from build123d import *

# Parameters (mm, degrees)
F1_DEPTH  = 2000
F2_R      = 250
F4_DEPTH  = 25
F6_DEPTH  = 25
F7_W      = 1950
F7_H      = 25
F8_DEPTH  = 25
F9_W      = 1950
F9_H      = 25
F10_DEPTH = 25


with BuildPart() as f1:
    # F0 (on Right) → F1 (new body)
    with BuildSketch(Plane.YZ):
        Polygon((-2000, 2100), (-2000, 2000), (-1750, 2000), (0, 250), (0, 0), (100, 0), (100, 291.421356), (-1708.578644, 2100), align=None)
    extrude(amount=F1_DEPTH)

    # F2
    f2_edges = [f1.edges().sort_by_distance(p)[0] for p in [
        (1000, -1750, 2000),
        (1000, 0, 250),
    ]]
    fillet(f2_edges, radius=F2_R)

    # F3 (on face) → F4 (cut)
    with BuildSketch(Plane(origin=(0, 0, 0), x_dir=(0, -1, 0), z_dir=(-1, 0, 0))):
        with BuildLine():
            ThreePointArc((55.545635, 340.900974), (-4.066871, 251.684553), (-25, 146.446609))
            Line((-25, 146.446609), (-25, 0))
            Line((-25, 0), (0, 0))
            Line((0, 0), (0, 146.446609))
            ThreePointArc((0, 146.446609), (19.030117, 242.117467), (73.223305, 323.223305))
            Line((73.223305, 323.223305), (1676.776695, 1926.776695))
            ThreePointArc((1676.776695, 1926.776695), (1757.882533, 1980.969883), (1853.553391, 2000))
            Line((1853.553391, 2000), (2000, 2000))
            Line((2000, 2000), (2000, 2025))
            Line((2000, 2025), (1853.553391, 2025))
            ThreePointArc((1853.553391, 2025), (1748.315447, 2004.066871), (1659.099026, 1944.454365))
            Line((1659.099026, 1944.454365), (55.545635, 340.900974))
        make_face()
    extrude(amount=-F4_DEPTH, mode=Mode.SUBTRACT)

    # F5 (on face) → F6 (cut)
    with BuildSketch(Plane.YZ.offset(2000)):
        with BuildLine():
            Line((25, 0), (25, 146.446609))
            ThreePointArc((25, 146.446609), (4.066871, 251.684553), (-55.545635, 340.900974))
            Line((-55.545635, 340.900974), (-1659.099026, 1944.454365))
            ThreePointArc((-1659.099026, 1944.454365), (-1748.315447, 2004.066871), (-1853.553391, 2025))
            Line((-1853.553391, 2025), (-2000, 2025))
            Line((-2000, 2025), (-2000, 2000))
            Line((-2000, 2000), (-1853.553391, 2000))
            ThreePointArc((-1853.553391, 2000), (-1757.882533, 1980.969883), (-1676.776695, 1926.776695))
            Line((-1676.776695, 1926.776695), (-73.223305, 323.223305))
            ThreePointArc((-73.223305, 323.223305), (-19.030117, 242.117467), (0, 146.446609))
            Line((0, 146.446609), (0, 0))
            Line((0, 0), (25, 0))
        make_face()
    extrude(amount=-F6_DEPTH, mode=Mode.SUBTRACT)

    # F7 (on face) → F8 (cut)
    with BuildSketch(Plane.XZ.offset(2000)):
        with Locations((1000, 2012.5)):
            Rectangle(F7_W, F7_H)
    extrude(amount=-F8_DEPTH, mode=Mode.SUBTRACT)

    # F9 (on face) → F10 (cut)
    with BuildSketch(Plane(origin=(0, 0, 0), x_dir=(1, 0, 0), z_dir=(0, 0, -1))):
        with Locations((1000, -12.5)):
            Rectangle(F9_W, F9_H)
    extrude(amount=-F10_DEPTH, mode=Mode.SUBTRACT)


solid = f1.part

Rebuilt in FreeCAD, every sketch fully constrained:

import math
import FreeCAD as App
import Part
import Sketcher
from FreeCAD import Vector
Q = App.Units.Quantity


def edges_at(feature, points):
    """Names of the edges that pass closest to the given points."""
    edges = feature.Shape.Edges
    near = lambda p: min(range(len(edges)), key=lambda i: edges[i].distToShape(Part.Vertex(*p))[0])
    return sorted({f"Edge{near(p) + 1}" for p in points})

doc = App.newDocument("Part")
params = doc.addObject("Spreadsheet::Sheet", "Params")
for row, (alias, value) in enumerate([
    ("sketch1_width", "250 mm"),
    ("sketch1_width2", "100 mm"),
    ("pad1_length", "2000 mm"),
    ("fillet_radius", "250 mm"),
    ("sketch2_width", "25 mm"),
    ("pocket1_length", "25 mm"),
    ("sketch3_width", "25 mm"),
    ("pocket2_length", "25 mm"),
    ("sketch4_width", "1950 mm"),
    ("sketch4_height", "25 mm"),
    ("pocket3_length", "25 mm"),
    ("sketch5_width", "1950 mm"),
    ("sketch5_height", "25 mm"),
    ("pocket4_length", "25 mm"),
], start=1):
    params.set(f"A{row}", alias)
    params.set(f"B{row}", "=" + value)
    params.setAlias(f"B{row}", alias)

body = doc.addObject("PartDesign::Body", "Body")

sketch1 = body.newObject("Sketcher::SketchObject", "Sketch")
sketch1.AttachmentSupport = (doc.getObject("YZ_Plane"), [""])
sketch1.MapMode = "FlatFace"
sketch1.addGeometry([
    Part.LineSegment(Vector(-2000, 2100, 0), Vector(-2000, 2000, 0)),
    Part.LineSegment(Vector(-2000, 2000, 0), Vector(-1750, 2000, 0)),
    Part.LineSegment(Vector(-1750, 2000, 0), Vector(0, 250, 0)),
    Part.LineSegment(Vector(0, 250, 0), Vector(0, 0, 0)),
    Part.LineSegment(Vector(0, 0, 0), Vector(100, 0, 0)),
    Part.LineSegment(Vector(100, 0, 0), Vector(100, 291, 0)),
    Part.LineSegment(Vector(100, 291, 0), Vector(-1709, 2100, 0)),
    Part.LineSegment(Vector(-1709, 2100, 0), Vector(-2000, 2100, 0)),
], False)
sketch1.addConstraint([
    Sketcher.Constraint("Coincident", 0, 2, 1, 1),
    Sketcher.Constraint("Coincident", 1, 2, 2, 1),
    Sketcher.Constraint("Coincident", 2, 2, 3, 1),
    Sketcher.Constraint("Coincident", 3, 2, 4, 1),
    Sketcher.Constraint("Coincident", 4, 2, 5, 1),
    Sketcher.Constraint("Coincident", 5, 2, 6, 1),
    Sketcher.Constraint("Coincident", 6, 2, 7, 1),
    Sketcher.Constraint("Coincident", 7, 2, 0, 1),
    Sketcher.Constraint("Vertical", 0),
    Sketcher.Constraint("Horizontal", 1),
    Sketcher.Constraint("Vertical", 3),
    Sketcher.Constraint("Horizontal", 4),
    Sketcher.Constraint("Vertical", 5),
    Sketcher.Constraint("Horizontal", 7),
    Sketcher.Constraint("Coincident", 3, 2, -1, 1),
    Sketcher.Constraint("Parallel", 2, 6),
    Sketcher.Constraint("Equal", 4, 0),
    Sketcher.Constraint("Equal", 1, 3),
    Sketcher.Constraint("Equal", 7, 5),
    Sketcher.Constraint("DistanceX", 1, 1, 1, 2, Q("250 mm")),
    Sketcher.Constraint("DistanceX", 4, 1, 4, 2, Q("100 mm")),
    Sketcher.Constraint("DistanceX", 0, 2, -1, 1, Q("2000 mm")),
    Sketcher.Constraint("DistanceX", 7, 2, 7, 1, Q("291.421356 mm")),
])
sketch1.setExpression("Constraints[19]", "Params.sketch1_width")
sketch1.setExpression("Constraints[20]", "Params.sketch1_width2")
pad1 = body.newObject("PartDesign::Pad", "Pad")
pad1.Profile = sketch1
pad1.setExpression("Length", "Params.pad1_length")
doc.recompute()

fillet = body.newObject("PartDesign::Fillet", "Fillet")
fillet.Base = (pad1, edges_at(pad1, [(1000, -1750, 2000), (1000, 0, 250)]))
fillet.setExpression("Radius", "Params.fillet_radius")

sketch2 = body.newObject("Sketcher::SketchObject", "Sketch001")
sketch2.AttachmentSupport = (doc.getObject("YZ_Plane"), [""])
sketch2.MapMode = "FlatFace"
sketch2.addGeometry([
    Part.ArcOfCircle(Part.Circle(Vector(-250, 146, 0), Vector(0, 0, 1), 275), math.radians(0), math.radians(45)),
    Part.LineSegment(Vector(25, 146, 0), Vector(25, 0, 0)),
    Part.LineSegment(Vector(25, 0, 0), Vector(0, 0, 0)),
    Part.LineSegment(Vector(0, 0, 0), Vector(0, 146, 0)),
    Part.ArcOfCircle(Part.Circle(Vector(-250, 146, 0), Vector(0, 0, 1), 250), math.radians(0), math.radians(45)),
    Part.LineSegment(Vector(-73, 323, 0), Vector(-1677, 1927, 0)),
    Part.ArcOfCircle(Part.Circle(Vector(-1854, 1750, 0), Vector(0, 0, 1), 250), math.radians(45), math.radians(90)),
    Part.LineSegment(Vector(-1854, 2000, 0), Vector(-2000, 2000, 0)),
    Part.LineSegment(Vector(-2000, 2000, 0), Vector(-2000, 2025, 0)),
    Part.LineSegment(Vector(-2000, 2025, 0), Vector(-1854, 2025, 0)),
    Part.ArcOfCircle(Part.Circle(Vector(-1854, 1750, 0), Vector(0, 0, 1), 275), math.radians(45), math.radians(90)),
    Part.LineSegment(Vector(-1659, 1944, 0), Vector(-56, 341, 0)),
], False)
sketch2.addConstraint([
    Sketcher.Constraint("Tangent", 0, 1, 1, 1),
    Sketcher.Constraint("Coincident", 1, 2, 2, 1),
    Sketcher.Constraint("Coincident", 2, 2, 3, 1),
    Sketcher.Constraint("Tangent", 3, 2, 4, 1),
    Sketcher.Constraint("Tangent", 4, 2, 5, 1),
    Sketcher.Constraint("Tangent", 5, 2, 6, 1),
    Sketcher.Constraint("Tangent", 6, 2, 7, 1),
    Sketcher.Constraint("Coincident", 7, 2, 8, 1),
    Sketcher.Constraint("Coincident", 8, 2, 9, 1),
    Sketcher.Constraint("Tangent", 9, 2, 10, 2),
    Sketcher.Constraint("Tangent", 10, 1, 11, 1),
    Sketcher.Constraint("Tangent", 11, 2, 0, 2),
    Sketcher.Constraint("Vertical", 1),
    Sketcher.Constraint("Horizontal", 2),
    Sketcher.Constraint("Vertical", 3),
    Sketcher.Constraint("Horizontal", 7),
    Sketcher.Constraint("Vertical", 8),
    Sketcher.Constraint("Horizontal", 9),
    Sketcher.Constraint("Coincident", 2, 2, -1, 1),
    Sketcher.Constraint("Coincident", 4, 3, 0, 3),
    Sketcher.Constraint("Coincident", 10, 3, 6, 3),
    Sketcher.Constraint("Equal", 4, 6),
    Sketcher.Constraint("Equal", 0, 10),
    Sketcher.Constraint("Equal", 9, 1),
    Sketcher.Constraint("DistanceX", 2, 2, 2, 1, Q("25 mm")),
    Sketcher.Constraint("Angle", 5, Q("135 deg")),
    Sketcher.Constraint("DistanceY", -1, 1, 6, 2, Q("2000 mm")),
    Sketcher.Constraint("Radius", 0, Q("275.000006 mm")),
    Sketcher.Constraint("DistanceX", 7, 2, 7, 1, Q("146.446609 mm")),
])
sketch2.setExpression("Constraints[24]", "Params.sketch2_width")
pocket1 = body.newObject("PartDesign::Pocket", "Pocket")
pocket1.Profile = sketch2
pocket1.setExpression("Length", "Params.pocket1_length")
pocket1.Reversed = True

sketch3 = body.newObject("Sketcher::SketchObject", "Sketch002")
sketch3.AttachmentSupport = (doc.getObject("YZ_Plane"), [""])
sketch3.MapMode = "FlatFace"
sketch3.AttachmentOffset = App.Placement(Vector(0, 0, 2000), App.Rotation())
sketch3.addGeometry([
    Part.LineSegment(Vector(25, 0, 0), Vector(25, 146, 0)),
    Part.ArcOfCircle(Part.Circle(Vector(-250, 146, 0), Vector(0, 0, 1), 275), math.radians(0), math.radians(45)),
    Part.LineSegment(Vector(-56, 341, 0), Vector(-1659, 1944, 0)),
    Part.ArcOfCircle(Part.Circle(Vector(-1854, 1750, 0), Vector(0, 0, 1), 275), math.radians(45), math.radians(90)),
    Part.LineSegment(Vector(-1854, 2025, 0), Vector(-2000, 2025, 0)),
    Part.LineSegment(Vector(-2000, 2025, 0), Vector(-2000, 2000, 0)),
    Part.LineSegment(Vector(-2000, 2000, 0), Vector(-1854, 2000, 0)),
    Part.ArcOfCircle(Part.Circle(Vector(-1854, 1750, 0), Vector(0, 0, 1), 250), math.radians(45), math.radians(90)),
    Part.LineSegment(Vector(-1677, 1927, 0), Vector(-73, 323, 0)),
    Part.ArcOfCircle(Part.Circle(Vector(-250, 146, 0), Vector(0, 0, 1), 250), math.radians(0), math.radians(45)),
    Part.LineSegment(Vector(0, 146, 0), Vector(0, 0, 0)),
    Part.LineSegment(Vector(0, 0, 0), Vector(25, 0, 0)),
], False)
sketch3.addConstraint([
    Sketcher.Constraint("Tangent", 0, 2, 1, 1),
    Sketcher.Constraint("Tangent", 1, 2, 2, 1),
    Sketcher.Constraint("Tangent", 2, 2, 3, 1),
    Sketcher.Constraint("Tangent", 3, 2, 4, 1),
    Sketcher.Constraint("Coincident", 4, 2, 5, 1),
    Sketcher.Constraint("Coincident", 5, 2, 6, 1),
    Sketcher.Constraint("Tangent", 6, 2, 7, 2),
    Sketcher.Constraint("Tangent", 7, 1, 8, 1),
    Sketcher.Constraint("Tangent", 8, 2, 9, 2),
    Sketcher.Constraint("Tangent", 9, 1, 10, 1),
    Sketcher.Constraint("Coincident", 10, 2, 11, 1),
    Sketcher.Constraint("Coincident", 11, 2, 0, 1),
    Sketcher.Constraint("Vertical", 0),
    Sketcher.Constraint("Horizontal", 4),
    Sketcher.Constraint("Vertical", 5),
    Sketcher.Constraint("Horizontal", 6),
    Sketcher.Constraint("Vertical", 10),
    Sketcher.Constraint("Horizontal", 11),
    Sketcher.Constraint("Coincident", 10, 2, -1, 1),
    Sketcher.Constraint("Coincident", 7, 3, 3, 3),
    Sketcher.Constraint("Coincident", 9, 3, 1, 3),
    Sketcher.Constraint("Equal", 1, 3),
    Sketcher.Constraint("Equal", 7, 9),
    Sketcher.Constraint("Equal", 6, 0),
    Sketcher.Constraint("DistanceX", 11, 1, 11, 2, Q("25 mm")),
    Sketcher.Constraint("Angle", 2, Q("135 deg")),
    Sketcher.Constraint("DistanceY", -1, 1, 3, 2, Q("2025 mm")),
    Sketcher.Constraint("Radius", 1, Q("275.000006 mm")),
    Sketcher.Constraint("DistanceX", 4, 2, 4, 1, Q("146.446609 mm")),
])
sketch3.setExpression("Constraints[24]", "Params.sketch3_width")
pocket2 = body.newObject("PartDesign::Pocket", "Pocket001")
pocket2.Profile = sketch3
pocket2.setExpression("Length", "Params.pocket2_length")

sketch4 = body.newObject("Sketcher::SketchObject", "Sketch003")
sketch4.AttachmentSupport = (doc.getObject("XZ_Plane"), [""])
sketch4.MapMode = "FlatFace"
sketch4.AttachmentOffset = App.Placement(Vector(0, 0, 2000), App.Rotation())
sketch4.addGeometry([
    Part.LineSegment(Vector(25, 2025, 0), Vector(25, 2000, 0)),
    Part.LineSegment(Vector(25, 2000, 0), Vector(1975, 2000, 0)),
    Part.LineSegment(Vector(1975, 2000, 0), Vector(1975, 2025, 0)),
    Part.LineSegment(Vector(1975, 2025, 0), Vector(25, 2025, 0)),
], False)
sketch4.addConstraint([
    Sketcher.Constraint("Coincident", 0, 2, 1, 1),
    Sketcher.Constraint("Coincident", 1, 2, 2, 1),
    Sketcher.Constraint("Coincident", 2, 2, 3, 1),
    Sketcher.Constraint("Coincident", 3, 2, 0, 1),
    Sketcher.Constraint("Vertical", 0),
    Sketcher.Constraint("Horizontal", 1),
    Sketcher.Constraint("Vertical", 2),
    Sketcher.Constraint("Horizontal", 3),
    Sketcher.Constraint("DistanceX", 1, 1, 1, 2, Q("1950 mm")),
    Sketcher.Constraint("DistanceY", 0, 2, 0, 1, Q("25 mm")),
    Sketcher.Constraint("DistanceX", -1, 1, 0, 2, Q("25 mm")),
    Sketcher.Constraint("DistanceY", -1, 1, 0, 2, Q("2000 mm")),
])
sketch4.setExpression("Constraints[8]", "Params.sketch4_width")
sketch4.setExpression("Constraints[9]", "Params.sketch4_height")
pocket3 = body.newObject("PartDesign::Pocket", "Pocket002")
pocket3.Profile = sketch4
pocket3.setExpression("Length", "Params.pocket3_length")

sketch5 = body.newObject("Sketcher::SketchObject", "Sketch004")
sketch5.AttachmentSupport = (doc.getObject("XY_Plane"), [""])
sketch5.MapMode = "FlatFace"
sketch5.addGeometry([
    Part.LineSegment(Vector(25, 0, 0), Vector(25, 25, 0)),
    Part.LineSegment(Vector(25, 25, 0), Vector(1975, 25, 0)),
    Part.LineSegment(Vector(1975, 25, 0), Vector(1975, 0, 0)),
    Part.LineSegment(Vector(1975, 0, 0), Vector(25, 0, 0)),
], False)
sketch5.addConstraint([
    Sketcher.Constraint("Coincident", 0, 2, 1, 1),
    Sketcher.Constraint("Coincident", 1, 2, 2, 1),
    Sketcher.Constraint("Coincident", 2, 2, 3, 1),
    Sketcher.Constraint("Coincident", 3, 2, 0, 1),
    Sketcher.Constraint("Vertical", 0),
    Sketcher.Constraint("Horizontal", 1),
    Sketcher.Constraint("Vertical", 2),
    Sketcher.Constraint("Horizontal", 3),
    Sketcher.Constraint("PointOnObject", 2, 2, -1),
    Sketcher.Constraint("DistanceX", 1, 1, 1, 2, Q("1950 mm")),
    Sketcher.Constraint("DistanceY", 0, 1, 0, 2, Q("25 mm")),
    Sketcher.Constraint("DistanceX", -1, 1, 0, 2, Q("25 mm")),
])
sketch5.setExpression("Constraints[9]", "Params.sketch5_width")
sketch5.setExpression("Constraints[10]", "Params.sketch5_height")
pocket4 = body.newObject("PartDesign::Pocket", "Pocket003")
pocket4.Profile = sketch5
pocket4.setExpression("Length", "Params.pocket4_length")
pocket4.Reversed = True

doc.recompute()
